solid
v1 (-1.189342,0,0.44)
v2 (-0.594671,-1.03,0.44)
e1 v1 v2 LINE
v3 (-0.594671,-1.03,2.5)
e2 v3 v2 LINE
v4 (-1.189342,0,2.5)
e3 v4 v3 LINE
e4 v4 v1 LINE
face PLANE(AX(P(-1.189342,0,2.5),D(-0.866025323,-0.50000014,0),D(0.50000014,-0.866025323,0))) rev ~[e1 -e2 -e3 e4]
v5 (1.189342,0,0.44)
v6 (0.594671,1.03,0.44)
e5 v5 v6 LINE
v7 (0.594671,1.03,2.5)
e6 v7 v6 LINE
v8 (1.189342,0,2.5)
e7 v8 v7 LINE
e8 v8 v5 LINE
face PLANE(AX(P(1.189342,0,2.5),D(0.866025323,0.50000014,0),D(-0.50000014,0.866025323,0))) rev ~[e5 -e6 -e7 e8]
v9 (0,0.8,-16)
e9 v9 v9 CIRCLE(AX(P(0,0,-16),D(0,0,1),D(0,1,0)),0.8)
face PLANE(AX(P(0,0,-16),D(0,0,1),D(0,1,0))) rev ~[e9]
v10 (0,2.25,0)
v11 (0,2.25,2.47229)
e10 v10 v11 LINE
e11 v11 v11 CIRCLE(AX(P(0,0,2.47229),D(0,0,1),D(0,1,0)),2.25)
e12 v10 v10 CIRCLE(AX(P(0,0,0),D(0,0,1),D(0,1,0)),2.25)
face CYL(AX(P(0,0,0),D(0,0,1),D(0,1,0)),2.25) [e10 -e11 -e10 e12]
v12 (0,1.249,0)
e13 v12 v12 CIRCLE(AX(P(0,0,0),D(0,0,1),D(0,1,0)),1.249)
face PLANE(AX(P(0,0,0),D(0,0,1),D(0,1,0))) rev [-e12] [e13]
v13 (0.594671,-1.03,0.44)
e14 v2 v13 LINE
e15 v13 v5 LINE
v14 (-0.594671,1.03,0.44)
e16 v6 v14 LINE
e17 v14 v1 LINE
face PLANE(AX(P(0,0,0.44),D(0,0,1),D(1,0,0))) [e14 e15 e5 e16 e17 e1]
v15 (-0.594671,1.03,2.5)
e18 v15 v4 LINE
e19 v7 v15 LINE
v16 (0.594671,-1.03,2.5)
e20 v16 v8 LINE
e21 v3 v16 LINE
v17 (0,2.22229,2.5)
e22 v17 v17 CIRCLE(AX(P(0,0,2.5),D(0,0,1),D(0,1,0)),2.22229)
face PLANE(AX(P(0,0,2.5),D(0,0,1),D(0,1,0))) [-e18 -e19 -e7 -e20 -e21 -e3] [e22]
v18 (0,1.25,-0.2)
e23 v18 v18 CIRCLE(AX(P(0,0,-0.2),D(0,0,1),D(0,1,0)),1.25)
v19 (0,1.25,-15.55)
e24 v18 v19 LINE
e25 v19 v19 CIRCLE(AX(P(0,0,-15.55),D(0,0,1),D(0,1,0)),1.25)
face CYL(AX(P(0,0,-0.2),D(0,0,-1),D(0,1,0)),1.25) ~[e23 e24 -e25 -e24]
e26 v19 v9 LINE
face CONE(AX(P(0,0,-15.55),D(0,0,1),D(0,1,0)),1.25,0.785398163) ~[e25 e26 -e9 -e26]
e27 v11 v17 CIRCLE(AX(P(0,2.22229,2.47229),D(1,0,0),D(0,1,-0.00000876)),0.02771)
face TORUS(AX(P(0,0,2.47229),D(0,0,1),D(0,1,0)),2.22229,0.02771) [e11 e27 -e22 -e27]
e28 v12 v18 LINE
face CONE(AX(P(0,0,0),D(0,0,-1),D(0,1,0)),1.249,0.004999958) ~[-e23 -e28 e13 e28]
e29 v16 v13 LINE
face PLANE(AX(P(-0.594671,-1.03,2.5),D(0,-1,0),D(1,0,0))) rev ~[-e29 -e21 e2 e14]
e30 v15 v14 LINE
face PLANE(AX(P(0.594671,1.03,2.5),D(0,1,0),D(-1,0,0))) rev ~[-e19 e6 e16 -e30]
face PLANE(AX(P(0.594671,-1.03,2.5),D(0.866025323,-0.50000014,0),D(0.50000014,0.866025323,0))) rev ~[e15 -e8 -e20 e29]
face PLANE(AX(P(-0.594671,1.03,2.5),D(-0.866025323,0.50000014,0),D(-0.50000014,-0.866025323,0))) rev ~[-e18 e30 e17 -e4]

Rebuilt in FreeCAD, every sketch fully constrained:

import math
import FreeCAD as App
import Part
import Sketcher

V = App.Vector
Q = App.Units.Quantity

doc = App.newDocument("Part")
body = doc.addObject("PartDesign::Body", "Body")

# Sketch on YZ plane
sketch1 = doc.addObject("Sketcher::SketchObject", "Sketch")
body.addObject(sketch1)
sketch1.AttachmentSupport = (doc.YZ_Plane, [""])
sketch1.MapMode = "FlatFace"
sketch1.addGeometry([
    Part.LineSegment(V(1.249, 0, 0), V(2.25, 0, 0)),  # 0
    Part.LineSegment(V(2.25, 0, 0), V(2.25, 2.472, 0)),  # 1
    Part.ArcOfCircle(Part.Circle(V(2.222, 2.472, 0), V(0, 0, 1), 0.028), math.radians(0), math.radians(90)),  # 2
    Part.LineSegment(V(2.222, 2.5, 0), V(0, 2.5, 0)),  # 3
    Part.LineSegment(V(0, 2.5, 0), V(0, -16, 0)),  # 4
    Part.LineSegment(V(0, -16, 0), V(0.8, -16, 0)),  # 5
    Part.LineSegment(V(0.8, -16, 0), V(1.25, -15.55, 0)),  # 6
    Part.LineSegment(V(1.25, -15.55, 0), V(1.25, -0.2, 0)),  # 7
    Part.LineSegment(V(1.25, -0.2, 0), V(1.249, 0, 0)),  # 8
], False)
sketch1.addConstraint([
    Sketcher.Constraint("Coincident", 0, 2, 1, 1),
    Sketcher.Constraint("Coincident", 1, 2, 2, 1),
    Sketcher.Constraint("Coincident", 2, 2, 3, 1),
    Sketcher.Constraint("Coincident", 3, 2, 4, 1),
    Sketcher.Constraint("Coincident", 4, 2, 5, 1),
    Sketcher.Constraint("Coincident", 5, 2, 6, 1),
    Sketcher.Constraint("Coincident", 6, 2, 7, 1),
    Sketcher.Constraint("Coincident", 7, 2, 8, 1),
    Sketcher.Constraint("Coincident", 8, 2, 0, 1),
    Sketcher.Constraint("Horizontal", 0),
    Sketcher.Constraint("Vertical", 1),
    Sketcher.Constraint("Horizontal", 3),
    Sketcher.Constraint("Vertical", 4),
    Sketcher.Constraint("Horizontal", 5),
    Sketcher.Constraint("Vertical", 7),
    Sketcher.Constraint("PointOnObject", 0, 2, -1),
    Sketcher.Constraint("PointOnObject", 3, 2, -2),
    Sketcher.Constraint("Horizontal", 2, 3, 1, 2),
    Sketcher.Constraint("Angle", 6, Q("45 deg")),
    Sketcher.Constraint("DistanceX", 5, 1, 5, 2, 0.8),
    Sketcher.Constraint("DistanceY", 4, 2, 4, 1, 18.5),
    Sketcher.Constraint("DistanceY", 4, 2, -1, 1, 16.0),
    Sketcher.Constraint("DistanceX", 6, 2, 0, 2, 1.0),
    Sketcher.Constraint("DistanceY", 7, 1, 7, 2, 15.35),
    Sketcher.Constraint("DistanceY", 7, 2, -1, 1, 0.2),
    Sketcher.Constraint("DistanceX", 0, 1, 0, 2, 1.001),
    Sketcher.Constraint("Radius", 2, 0.02771),
    Sketcher.Constraint("DistanceX", 3, 2, 3, 1, 2.22229),
])
revolution = doc.addObject("PartDesign::Revolution", "Revolution")
body.addObject(revolution)
revolution.Profile = sketch1
revolution.ReferenceAxis = (sketch1, ["V_Axis"])
revolution.Angle = 360

# Sketch on XY plane
sketch2 = doc.addObject("Sketcher::SketchObject", "Sketch001")
body.addObject(sketch2)
sketch2.AttachmentSupport = (doc.XY_Plane, [""])
sketch2.MapMode = "FlatFace"
sketch2.AttachmentOffset = App.Placement(V(0, 0, 2.5), App.Rotation())
sketch2.addGeometry([
    Part.LineSegment(V(1.2, 0, 0), V(0.6, 1, 0)),  # 0
    Part.LineSegment(V(0.6, 1, 0), V(-0.6, 1, 0)),  # 1
    Part.LineSegment(V(-0.6, 1, 0), V(-1.2, 0, 0)),  # 2
    Part.LineSegment(V(-1.2, 0, 0), V(-0.6, -1, 0)),  # 3
    Part.LineSegment(V(-0.6, -1, 0), V(0.6, -1, 0)),  # 4
    Part.LineSegment(V(0.6, -1, 0), V(1.2, 0, 0)),  # 5
], False)
sketch2.addConstraint([
    Sketcher.Constraint("Coincident", 0, 2, 1, 1),
    Sketcher.Constraint("Coincident", 1, 2, 2, 1),
    Sketcher.Constraint("Coincident", 2, 2, 3, 1),
    Sketcher.Constraint("Coincident", 3, 2, 4, 1),
    Sketcher.Constraint("Coincident", 4, 2, 5, 1),
    Sketcher.Constraint("Coincident", 5, 2, 0, 1),
    Sketcher.Constraint("Horizontal", 1),
    Sketcher.Constraint("Horizontal", 4),
    Sketcher.Constraint("Symmetric", 0, 2, 3, 2, -1, 1),
    Sketcher.Constraint("Symmetric", 2, 2, 5, 2, -1, 1),
    Sketcher.Constraint("PointOnObject", 2, 2, -1),
    Sketcher.Constraint("Parallel", 2, 5),
    Sketcher.Constraint("Vertical", 1, 2, 3, 2),
    Sketcher.Constraint("Angle", 0, Q("120.000009 deg")),
    Sketcher.Constraint("DistanceY", -1, 1, 0, 2, 1.03),
    Sketcher.Constraint("DistanceX", 1, 2, 1, 1, 1.189342),
])
pocket1 = doc.addObject("PartDesign::Pocket", "Pocket")
body.addObject(pocket1)
pocket1.Profile = sketch2
pocket1.Length = 2.06

doc.recompute()
